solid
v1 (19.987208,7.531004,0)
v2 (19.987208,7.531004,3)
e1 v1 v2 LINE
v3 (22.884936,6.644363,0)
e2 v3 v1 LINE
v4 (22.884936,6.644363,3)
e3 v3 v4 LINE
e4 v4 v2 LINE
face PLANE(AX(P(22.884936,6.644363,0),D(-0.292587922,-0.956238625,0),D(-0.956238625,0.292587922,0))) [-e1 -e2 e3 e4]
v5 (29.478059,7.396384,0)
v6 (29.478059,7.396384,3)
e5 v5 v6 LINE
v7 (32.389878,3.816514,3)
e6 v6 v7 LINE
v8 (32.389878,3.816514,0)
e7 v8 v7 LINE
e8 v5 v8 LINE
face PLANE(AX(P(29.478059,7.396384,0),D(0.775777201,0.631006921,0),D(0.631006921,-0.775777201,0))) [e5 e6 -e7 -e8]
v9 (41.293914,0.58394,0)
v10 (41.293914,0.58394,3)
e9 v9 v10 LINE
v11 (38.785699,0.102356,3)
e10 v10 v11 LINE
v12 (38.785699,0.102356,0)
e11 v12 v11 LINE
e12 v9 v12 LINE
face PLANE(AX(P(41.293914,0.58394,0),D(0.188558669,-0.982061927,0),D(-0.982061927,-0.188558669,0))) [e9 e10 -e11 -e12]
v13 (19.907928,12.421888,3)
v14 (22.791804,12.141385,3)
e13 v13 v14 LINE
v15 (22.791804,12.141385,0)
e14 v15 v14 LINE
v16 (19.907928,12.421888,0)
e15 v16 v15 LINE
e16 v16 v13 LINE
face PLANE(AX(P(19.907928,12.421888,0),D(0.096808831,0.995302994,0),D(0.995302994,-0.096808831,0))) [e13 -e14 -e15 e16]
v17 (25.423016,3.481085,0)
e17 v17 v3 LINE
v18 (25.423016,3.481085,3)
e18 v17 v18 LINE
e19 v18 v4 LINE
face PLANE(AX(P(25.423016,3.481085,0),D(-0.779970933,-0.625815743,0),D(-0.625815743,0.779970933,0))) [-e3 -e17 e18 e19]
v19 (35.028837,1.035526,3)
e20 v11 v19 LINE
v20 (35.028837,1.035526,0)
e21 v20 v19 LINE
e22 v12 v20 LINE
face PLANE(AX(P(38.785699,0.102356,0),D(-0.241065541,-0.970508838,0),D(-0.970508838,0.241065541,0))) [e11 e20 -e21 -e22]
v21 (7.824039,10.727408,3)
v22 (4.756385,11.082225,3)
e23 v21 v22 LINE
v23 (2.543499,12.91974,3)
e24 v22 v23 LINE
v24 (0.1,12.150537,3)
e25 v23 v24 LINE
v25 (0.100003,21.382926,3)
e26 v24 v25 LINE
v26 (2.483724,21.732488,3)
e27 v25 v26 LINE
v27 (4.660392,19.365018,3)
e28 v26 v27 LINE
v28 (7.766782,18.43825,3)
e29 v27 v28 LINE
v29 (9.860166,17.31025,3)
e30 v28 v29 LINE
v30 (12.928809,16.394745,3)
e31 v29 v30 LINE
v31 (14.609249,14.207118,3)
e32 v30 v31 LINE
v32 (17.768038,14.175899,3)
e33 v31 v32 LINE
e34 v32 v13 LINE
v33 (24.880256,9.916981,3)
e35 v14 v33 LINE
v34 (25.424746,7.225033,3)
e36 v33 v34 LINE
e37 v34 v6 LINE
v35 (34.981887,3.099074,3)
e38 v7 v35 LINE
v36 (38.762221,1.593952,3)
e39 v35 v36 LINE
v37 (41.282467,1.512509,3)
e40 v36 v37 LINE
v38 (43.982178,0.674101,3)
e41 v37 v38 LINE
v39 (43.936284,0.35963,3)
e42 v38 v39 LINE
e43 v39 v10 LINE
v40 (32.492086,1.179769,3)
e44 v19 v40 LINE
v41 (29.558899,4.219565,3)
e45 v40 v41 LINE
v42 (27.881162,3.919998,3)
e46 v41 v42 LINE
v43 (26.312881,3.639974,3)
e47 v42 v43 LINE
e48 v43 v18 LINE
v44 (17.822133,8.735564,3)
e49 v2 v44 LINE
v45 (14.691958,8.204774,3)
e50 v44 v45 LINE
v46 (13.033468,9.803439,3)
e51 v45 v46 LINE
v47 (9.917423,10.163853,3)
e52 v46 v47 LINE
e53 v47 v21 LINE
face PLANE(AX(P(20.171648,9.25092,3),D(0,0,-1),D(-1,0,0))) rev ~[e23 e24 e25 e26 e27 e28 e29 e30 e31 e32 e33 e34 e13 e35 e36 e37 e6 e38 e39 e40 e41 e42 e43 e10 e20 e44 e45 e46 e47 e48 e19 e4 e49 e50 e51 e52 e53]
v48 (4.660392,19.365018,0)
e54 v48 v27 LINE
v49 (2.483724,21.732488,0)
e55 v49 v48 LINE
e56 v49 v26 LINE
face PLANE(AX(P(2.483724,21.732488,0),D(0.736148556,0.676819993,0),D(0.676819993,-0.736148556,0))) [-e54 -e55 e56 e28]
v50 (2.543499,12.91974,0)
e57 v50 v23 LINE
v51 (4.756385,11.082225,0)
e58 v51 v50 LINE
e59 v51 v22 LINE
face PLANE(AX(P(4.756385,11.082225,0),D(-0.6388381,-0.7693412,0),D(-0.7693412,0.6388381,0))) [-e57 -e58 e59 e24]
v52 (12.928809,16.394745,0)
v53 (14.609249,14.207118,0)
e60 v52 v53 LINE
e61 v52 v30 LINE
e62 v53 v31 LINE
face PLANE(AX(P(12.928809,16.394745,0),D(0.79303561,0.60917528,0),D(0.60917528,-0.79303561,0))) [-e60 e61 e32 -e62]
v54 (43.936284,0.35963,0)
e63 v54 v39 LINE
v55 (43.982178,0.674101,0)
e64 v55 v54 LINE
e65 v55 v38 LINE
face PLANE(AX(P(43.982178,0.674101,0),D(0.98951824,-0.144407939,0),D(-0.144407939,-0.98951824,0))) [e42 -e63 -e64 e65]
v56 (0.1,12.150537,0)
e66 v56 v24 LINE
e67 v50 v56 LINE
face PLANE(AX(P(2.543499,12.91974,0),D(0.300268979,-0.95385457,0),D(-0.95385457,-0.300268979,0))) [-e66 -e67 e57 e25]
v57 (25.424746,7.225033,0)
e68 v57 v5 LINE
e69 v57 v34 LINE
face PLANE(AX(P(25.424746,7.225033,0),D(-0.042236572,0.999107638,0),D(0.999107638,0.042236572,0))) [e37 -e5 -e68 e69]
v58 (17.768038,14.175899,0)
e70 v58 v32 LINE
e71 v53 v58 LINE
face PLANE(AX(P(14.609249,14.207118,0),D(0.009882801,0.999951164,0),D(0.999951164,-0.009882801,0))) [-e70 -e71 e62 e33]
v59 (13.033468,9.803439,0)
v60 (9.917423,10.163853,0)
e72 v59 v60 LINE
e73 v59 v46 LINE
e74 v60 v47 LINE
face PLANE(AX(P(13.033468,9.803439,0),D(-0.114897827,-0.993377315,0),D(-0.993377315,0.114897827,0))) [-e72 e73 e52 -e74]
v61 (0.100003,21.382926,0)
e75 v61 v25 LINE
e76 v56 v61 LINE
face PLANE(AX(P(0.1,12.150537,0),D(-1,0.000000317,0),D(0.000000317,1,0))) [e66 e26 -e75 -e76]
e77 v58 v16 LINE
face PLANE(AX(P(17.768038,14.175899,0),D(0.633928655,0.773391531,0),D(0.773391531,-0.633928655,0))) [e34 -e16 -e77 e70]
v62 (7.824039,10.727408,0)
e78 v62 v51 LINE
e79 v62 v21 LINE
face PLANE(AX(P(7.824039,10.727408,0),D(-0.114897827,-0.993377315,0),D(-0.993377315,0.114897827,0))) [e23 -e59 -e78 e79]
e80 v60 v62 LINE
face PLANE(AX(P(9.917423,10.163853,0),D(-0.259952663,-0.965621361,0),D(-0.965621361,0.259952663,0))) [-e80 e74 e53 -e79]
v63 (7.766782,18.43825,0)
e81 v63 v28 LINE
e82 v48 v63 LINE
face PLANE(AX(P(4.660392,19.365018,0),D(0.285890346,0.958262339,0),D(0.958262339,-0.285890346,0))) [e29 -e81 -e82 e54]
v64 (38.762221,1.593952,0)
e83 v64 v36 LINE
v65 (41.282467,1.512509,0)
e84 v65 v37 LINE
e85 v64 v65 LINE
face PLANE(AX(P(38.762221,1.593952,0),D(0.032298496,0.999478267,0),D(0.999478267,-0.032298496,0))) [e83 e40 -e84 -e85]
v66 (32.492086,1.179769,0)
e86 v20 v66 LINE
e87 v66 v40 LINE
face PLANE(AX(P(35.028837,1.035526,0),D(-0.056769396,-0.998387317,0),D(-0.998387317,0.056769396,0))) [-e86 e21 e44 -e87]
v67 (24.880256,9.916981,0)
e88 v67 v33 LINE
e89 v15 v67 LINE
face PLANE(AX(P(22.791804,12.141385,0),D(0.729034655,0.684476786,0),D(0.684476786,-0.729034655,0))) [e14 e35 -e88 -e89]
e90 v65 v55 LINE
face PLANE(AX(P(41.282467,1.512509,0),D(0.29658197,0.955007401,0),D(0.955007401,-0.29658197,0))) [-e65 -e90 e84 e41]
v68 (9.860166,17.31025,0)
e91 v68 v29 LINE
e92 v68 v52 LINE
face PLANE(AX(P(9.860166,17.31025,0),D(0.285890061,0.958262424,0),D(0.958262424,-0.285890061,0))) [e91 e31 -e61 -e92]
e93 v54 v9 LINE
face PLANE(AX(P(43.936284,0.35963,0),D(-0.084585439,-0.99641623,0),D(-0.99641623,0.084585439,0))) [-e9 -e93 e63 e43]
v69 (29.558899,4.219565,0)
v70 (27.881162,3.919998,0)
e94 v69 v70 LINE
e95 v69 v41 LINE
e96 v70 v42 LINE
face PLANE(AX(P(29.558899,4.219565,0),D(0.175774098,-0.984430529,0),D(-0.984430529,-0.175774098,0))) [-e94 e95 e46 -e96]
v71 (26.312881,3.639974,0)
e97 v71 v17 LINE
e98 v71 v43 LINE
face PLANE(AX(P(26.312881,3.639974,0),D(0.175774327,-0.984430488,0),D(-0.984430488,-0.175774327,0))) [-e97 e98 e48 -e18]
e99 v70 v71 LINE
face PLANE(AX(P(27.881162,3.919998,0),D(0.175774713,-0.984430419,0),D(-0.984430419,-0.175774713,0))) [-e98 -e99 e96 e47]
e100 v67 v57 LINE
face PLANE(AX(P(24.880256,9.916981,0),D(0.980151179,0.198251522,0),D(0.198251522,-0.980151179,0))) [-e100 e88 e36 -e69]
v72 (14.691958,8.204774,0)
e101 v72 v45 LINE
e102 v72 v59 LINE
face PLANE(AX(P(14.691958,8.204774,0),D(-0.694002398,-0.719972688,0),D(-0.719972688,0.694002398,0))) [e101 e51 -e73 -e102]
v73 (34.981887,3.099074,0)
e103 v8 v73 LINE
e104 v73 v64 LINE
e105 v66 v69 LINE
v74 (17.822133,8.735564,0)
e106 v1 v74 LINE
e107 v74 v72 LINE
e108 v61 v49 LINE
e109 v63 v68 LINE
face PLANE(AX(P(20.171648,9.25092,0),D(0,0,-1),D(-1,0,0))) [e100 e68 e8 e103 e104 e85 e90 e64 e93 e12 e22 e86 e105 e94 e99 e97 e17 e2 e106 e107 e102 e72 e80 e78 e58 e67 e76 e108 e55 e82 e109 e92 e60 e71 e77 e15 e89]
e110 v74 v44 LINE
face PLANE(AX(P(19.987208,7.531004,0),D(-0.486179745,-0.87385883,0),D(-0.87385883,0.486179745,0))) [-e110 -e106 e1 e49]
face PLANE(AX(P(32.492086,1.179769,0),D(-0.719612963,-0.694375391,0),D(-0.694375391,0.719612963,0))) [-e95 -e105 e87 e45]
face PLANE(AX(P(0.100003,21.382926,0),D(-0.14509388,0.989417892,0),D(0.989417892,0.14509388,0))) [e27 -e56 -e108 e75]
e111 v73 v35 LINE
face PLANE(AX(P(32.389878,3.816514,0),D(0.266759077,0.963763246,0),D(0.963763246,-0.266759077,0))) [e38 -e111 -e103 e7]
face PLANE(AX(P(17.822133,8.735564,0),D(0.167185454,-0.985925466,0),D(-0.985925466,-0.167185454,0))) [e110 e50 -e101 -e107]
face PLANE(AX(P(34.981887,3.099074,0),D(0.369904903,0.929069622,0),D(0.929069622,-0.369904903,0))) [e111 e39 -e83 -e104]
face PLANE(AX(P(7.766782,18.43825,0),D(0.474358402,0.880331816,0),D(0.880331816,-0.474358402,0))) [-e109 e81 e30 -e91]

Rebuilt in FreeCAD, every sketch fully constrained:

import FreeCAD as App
import Part
import Sketcher
Q = App.Units.Quantity

doc = App.newDocument("Part")
body = doc.addObject("PartDesign::Body", "Body")

sketch1 = doc.addObject("Sketcher::SketchObject", "Sketch")
body.addObject(sketch1)
sketch1.AttachmentSupport = (doc.XY_Plane, [""])
sketch1.MapMode = "FlatFace"
sketch1.addGeometry([
    Part.LineSegment(App.Vector(2.483724, 21.732488, 0), App.Vector(0.100003, 21.382926, 0)),
    Part.LineSegment(App.Vector(0.100003, 21.382926, 0), App.Vector(0.1, 12.150537, 0)),
    Part.LineSegment(App.Vector(0.1, 12.150537, 0), App.Vector(2.543499, 12.91974, 0)),
    Part.LineSegment(App.Vector(2.543499, 12.91974, 0), App.Vector(4.756385, 11.082225, 0)),
    Part.LineSegment(App.Vector(4.756385, 11.082225, 0), App.Vector(7.824039, 10.727408, 0)),
    Part.LineSegment(App.Vector(7.824039, 10.727408, 0), App.Vector(9.917423, 10.163853, 0)),
    Part.LineSegment(App.Vector(9.917423, 10.163853, 0), App.Vector(13.033468, 9.803439, 0)),
    Part.LineSegment(App.Vector(13.033468, 9.803439, 0), App.Vector(14.691958, 8.204774, 0)),
    Part.LineSegment(App.Vector(14.691958, 8.204774, 0), App.Vector(17.822133, 8.735564, 0)),
    Part.LineSegment(App.Vector(17.822133, 8.735564, 0), App.Vector(19.987208, 7.531004, 0)),
    Part.LineSegment(App.Vector(19.987208, 7.531004, 0), App.Vector(22.884936, 6.644363, 0)),
    Part.LineSegment(App.Vector(22.884936, 6.644363, 0), App.Vector(25.423016, 3.481085, 0)),
    Part.LineSegment(App.Vector(25.423016, 3.481085, 0), App.Vector(26.312881, 3.639974, 0)),
    Part.LineSegment(App.Vector(26.312881, 3.639974, 0), App.Vector(27.881162, 3.919998, 0)),
    Part.LineSegment(App.Vector(27.881162, 3.919998, 0), App.Vector(29.558899, 4.219565, 0)),
    Part.LineSegment(App.Vector(29.558899, 4.219565, 0), App.Vector(32.492086, 1.179769, 0)),
    Part.LineSegment(App.Vector(32.492086, 1.179769, 0), App.Vector(35.028837, 1.035526, 0)),
    Part.LineSegment(App.Vector(35.028837, 1.035526, 0), App.Vector(38.785699, 0.102356, 0)),
    Part.LineSegment(App.Vector(38.785699, 0.102356, 0), App.Vector(41.293914, 0.58394, 0)),
    Part.LineSegment(App.Vector(41.293914, 0.58394, 0), App.Vector(43.936284, 0.35963, 0)),
    Part.LineSegment(App.Vector(43.936284, 0.35963, 0), App.Vector(43.982178, 0.674101, 0)),
    Part.LineSegment(App.Vector(43.982178, 0.674101, 0), App.Vector(41.282467, 1.512509, 0)),
    Part.LineSegment(App.Vector(41.282467, 1.512509, 0), App.Vector(38.762221, 1.593952, 0)),
    Part.LineSegment(App.Vector(38.762221, 1.593952, 0), App.Vector(34.981887, 3.099074, 0)),
    Part.LineSegment(App.Vector(34.981887, 3.099074, 0), App.Vector(32.389878, 3.816514, 0)),
    Part.LineSegment(App.Vector(32.389878, 3.816514, 0), App.Vector(29.478059, 7.396384, 0)),
    Part.LineSegment(App.Vector(29.478059, 7.396384, 0), App.Vector(25.424746, 7.225033, 0)),
    Part.LineSegment(App.Vector(25.424746, 7.225033, 0), App.Vector(24.880256, 9.916981, 0)),
    Part.LineSegment(App.Vector(24.880256, 9.916981, 0), App.Vector(22.791804, 12.141385, 0)),
    Part.LineSegment(App.Vector(22.791804, 12.141385, 0), App.Vector(19.907928, 12.421888, 0)),
    Part.LineSegment(App.Vector(19.907928, 12.421888, 0), App.Vector(17.768038, 14.175899, 0)),
    Part.LineSegment(App.Vector(17.768038, 14.175899, 0), App.Vector(14.609249, 14.207118, 0)),
    Part.LineSegment(App.Vector(14.609249, 14.207118, 0), App.Vector(12.928809, 16.394745, 0)),
    Part.LineSegment(App.Vector(12.928809, 16.394745, 0), App.Vector(9.860166, 17.31025, 0)),
    Part.LineSegment(App.Vector(9.860166, 17.31025, 0), App.Vector(7.766782, 18.43825, 0)),
    Part.LineSegment(App.Vector(7.766782, 18.43825, 0), App.Vector(4.660392, 19.365018, 0)),
    Part.LineSegment(App.Vector(4.660392, 19.365018, 0), App.Vector(2.483724, 21.732488, 0)),
], False)
sketch1.addConstraint([
    Sketcher.Constraint("Coincident", 0, 2, 1, 1),
    Sketcher.Constraint("Coincident", 1, 2, 2, 1),
    Sketcher.Constraint("Coincident", 2, 2, 3, 1),
    Sketcher.Constraint("Coincident", 3, 2, 4, 1),
    Sketcher.Constraint("Coincident", 4, 2, 5, 1),
    Sketcher.Constraint("Coincident", 5, 2, 6, 1),
    Sketcher.Constraint("Coincident", 6, 2, 7, 1),
    Sketcher.Constraint("Coincident", 7, 2, 8, 1),
    Sketcher.Constraint("Coincident", 8, 2, 9, 1),
    Sketcher.Constraint("Coincident", 9, 2, 10, 1),
    Sketcher.Constraint("Coincident", 10, 2, 11, 1),
    Sketcher.Constraint("Coincident", 11, 2, 12, 1),
    Sketcher.Constraint("Coincident", 12, 2, 13, 1),
    Sketcher.Constraint("Coincident", 13, 2, 14, 1),
    Sketcher.Constraint("Coincident", 14, 2, 15, 1),
    Sketcher.Constraint("Coincident", 15, 2, 16, 1),
    Sketcher.Constraint("Coincident", 16, 2, 17, 1),
    Sketcher.Constraint("Coincident", 17, 2, 18, 1),
    Sketcher.Constraint("Coincident", 18, 2, 19, 1),
    Sketcher.Constraint("Coincident", 19, 2, 20, 1),
    Sketcher.Constraint("Coincident", 20, 2, 21, 1),
    Sketcher.Constraint("Coincident", 21, 2, 22, 1),
    Sketcher.Constraint("Coincident", 22, 2, 23, 1),
    Sketcher.Constraint("Coincident", 23, 2, 24, 1),
    Sketcher.Constraint("Coincident", 24, 2, 25, 1),
    Sketcher.Constraint("Coincident", 25, 2, 26, 1),
    Sketcher.Constraint("Coincident", 26, 2, 27, 1),
    Sketcher.Constraint("Coincident", 27, 2, 28, 1),
    Sketcher.Constraint("Coincident", 28, 2, 29, 1),
    Sketcher.Constraint("Coincident", 29, 2, 30, 1),
    Sketcher.Constraint("Coincident", 30, 2, 31, 1),
    Sketcher.Constraint("Coincident", 31, 2, 32, 1),
    Sketcher.Constraint("Coincident", 32, 2, 33, 1),
    Sketcher.Constraint("Coincident", 33, 2, 34, 1),
    Sketcher.Constraint("Coincident", 34, 2, 35, 1),
    Sketcher.Constraint("Coincident", 35, 2, 36, 1),
    Sketcher.Constraint("Coincident", 36, 2, 0, 1),
    Sketcher.Constraint("Parallel", 4, 6),
    Sketcher.Constraint("Parallel", 12, 13),
    Sketcher.Constraint("Parallel", 13, 14),
    Sketcher.Constraint("Parallel", 33, 35),
    Sketcher.Constraint("Angle", 1, Q("-90.000018 deg")),
    Sketcher.Constraint("DistanceX", -1, 1, 1, 2, Q("0.1 mm")),
    Sketcher.Constraint("DistanceY", -1, 1, 13, 2, Q("3.919998 mm")),
    Sketcher.Constraint("DistanceY", 33, 2, 34, 2, Q("1.128 mm")),
    Sketcher.Constraint("Distance", 21, Q("2.8269 mm")),
    Sketcher.Constraint("Distance", 33, Q("3.202299 mm")),
    Sketcher.Constraint("DistanceX", -1, 1, 2, 2, Q("2.543499 mm")),
    Sketcher.Constraint("DistanceX", -1, 1, 14, 2, Q("29.558899 mm")),
    Sketcher.Constraint("DistanceX", -1, 1, 17, 2, Q("38.785699 mm")),
    Sketcher.Constraint("DistanceY", -1, 1, 20, 2, Q("0.674101 mm")),
    Sketcher.Constraint("DistanceY", -1, 1, 30, 2, Q("14.175899 mm")),
    Sketcher.Constraint("DistanceY", 3, 2, 0, 2, Q("10.300701 mm")),
    Sketcher.Constraint("DistanceY", 6, 2, 2, 2, Q("3.1163 mm")),
    Sketcher.Constraint("DistanceY", 6, 2, 1, 2, Q("2.347098 mm")),
    Sketcher.Constraint("DistanceY", 10, 2, 8, 2, Q("2.091201 mm")),
    Sketcher.Constraint("DistanceY", 12, 2, 7, 2, Q("4.5648 mm")),
    Sketcher.Constraint("DistanceY", 14, 2, 10, 2, Q("2.424798 mm")),
    Sketcher.Constraint("DistanceX", 15, 2, 19, 2, Q("11.444198 mm")),
    Sketcher.Constraint("DistanceX", 15, 2, 23, 2, Q("2.489801 mm")),
    Sketcher.Constraint("DistanceY", 11, 2, 25, 2, Q("3.915299 mm")),
    Sketcher.Constraint("Distance", 1, Q("9.232389 mm")),
    Sketcher.Constraint("Distance", 3, Q("2.876339 mm")),
    Sketcher.Constraint("Distance", 6, Q("3.136819 mm")),
    Sketcher.Constraint("Distance", 8, Q("3.17486 mm")),
    Sketcher.Constraint("Distance", 10, Q("3.030339 mm")),
    Sketcher.Constraint("Distance", 14, Q("1.704272 mm")),
    Sketcher.Constraint("Distance", 15, Q("4.22421 mm")),
    Sketcher.Constraint("Distance", 16, Q("2.540849 mm")),
    Sketcher.Constraint("Distance", 18, Q("2.554029 mm")),
    Sketcher.Constraint("Distance", 25, Q("4.614559 mm")),
    Sketcher.Constraint("Distance", 27, Q("2.746462 mm")),
    Sketcher.Constraint("Distance", 30, Q("2.76689 mm")),
    Sketcher.Constraint("Distance", 32, Q("2.758548 mm")),
    Sketcher.Constraint("Distance", 34, Q("2.377949 mm")),
    Sketcher.Constraint("Distance", 35, Q("3.241691 mm")),
    Sketcher.Constraint("DistanceY", -1, 1, 2, 2, Q("12.91974 mm")),
    Sketcher.Constraint("DistanceX", -1, 1, 4, 2, Q("7.824039 mm")),
    Sketcher.Constraint("DistanceX", -1, 1, 6, 2, Q("13.033468 mm")),
    Sketcher.Constraint("DistanceX", -1, 1, 9, 2, Q("19.987208 mm")),
    Sketcher.Constraint("DistanceX", -1, 1, 12, 2, Q("26.312881 mm")),
    Sketcher.Constraint("DistanceX", -1, 1, 13, 2, Q("27.881162 mm")),
    Sketcher.Constraint("DistanceY", -1, 1, 15, 2, Q("1.179769 mm")),
    Sketcher.Constraint("DistanceY", -1, 1, 18, 2, Q("0.58394 mm")),
    Sketcher.Constraint("DistanceY", -1, 1, 19, 2, Q("0.35963 mm")),
    Sketcher.Constraint("DistanceY", -1, 1, 21, 2, Q("1.512509 mm")),
    Sketcher.Constraint("DistanceX", -1, 1, 22, 2, Q("38.762221 mm")),
    Sketcher.Constraint("DistanceY", -1, 1, 22, 2, Q("1.593952 mm")),
    Sketcher.Constraint("DistanceX", -1, 1, 25, 2, Q("29.478059 mm")),
    Sketcher.Constraint("DistanceY", -1, 1, 27, 2, Q("9.916981 mm")),
    Sketcher.Constraint("DistanceX", -1, 1, 30, 2, Q("17.768038 mm")),
    Sketcher.Constraint("DistanceX", -1, 1, 31, 2, Q("14.609249 mm")),
    Sketcher.Constraint("DistanceX", -1, 1, 32, 2, Q("12.928809 mm")),
    Sketcher.Constraint("DistanceY", -1, 1, 33, 2, Q("17.31025 mm")),
    Sketcher.Constraint("DistanceX", -1, 1, 35, 2, Q("4.660392 mm")),
    Sketcher.Constraint("DistanceY", -1, 1, 36, 2, Q("21.732488 mm")),
    Sketcher.Constraint("DistanceY", 4, 2, 2, 2, Q("2.192332 mm")),
    Sketcher.Constraint("DistanceX", 6, 2, 7, 2, Q("1.658489 mm")),
    Sketcher.Constraint("DistanceY", 9, 2, 8, 2, Q("1.20456 mm")),
    Sketcher.Constraint("DistanceX", 10, 2, 11, 2, Q("2.538081 mm")),
    Sketcher.Constraint("DistanceX", 15, 2, 16, 2, Q("2.536751 mm")),
    Sketcher.Constraint("DistanceY", 17, 2, 16, 2, Q("0.93317 mm")),
    Sketcher.Constraint("DistanceX", 17, 2, 20, 2, Q("5.196478 mm")),
    Sketcher.Constraint("DistanceY", 17, 2, 23, 2, Q("2.996718 mm")),
    Sketcher.Constraint("DistanceX", 24, 2, 15, 2, Q("0.102209 mm")),
    Sketcher.Constraint("DistanceX", 10, 2, 26, 2, Q("2.53981 mm")),
    Sketcher.Constraint("DistanceY", 10, 2, 26, 2, Q("0.58067 mm")),
    Sketcher.Constraint("DistanceX", 28, 2, 27, 2, Q("2.088451 mm")),
    Sketcher.Constraint("DistanceY", 9, 2, 28, 2, Q("4.610382 mm")),
    Sketcher.Constraint("DistanceX", 29, 2, 9, 2, Q("0.07928 mm")),
    Sketcher.Constraint("DistanceX", 0, 2, 36, 2, Q("2.383721 mm")),
])
pad1 = doc.addObject("PartDesign::Pad", "Pad")
body.addObject(pad1)
pad1.Profile = sketch1
pad1.Length = 3

doc.recompute()
